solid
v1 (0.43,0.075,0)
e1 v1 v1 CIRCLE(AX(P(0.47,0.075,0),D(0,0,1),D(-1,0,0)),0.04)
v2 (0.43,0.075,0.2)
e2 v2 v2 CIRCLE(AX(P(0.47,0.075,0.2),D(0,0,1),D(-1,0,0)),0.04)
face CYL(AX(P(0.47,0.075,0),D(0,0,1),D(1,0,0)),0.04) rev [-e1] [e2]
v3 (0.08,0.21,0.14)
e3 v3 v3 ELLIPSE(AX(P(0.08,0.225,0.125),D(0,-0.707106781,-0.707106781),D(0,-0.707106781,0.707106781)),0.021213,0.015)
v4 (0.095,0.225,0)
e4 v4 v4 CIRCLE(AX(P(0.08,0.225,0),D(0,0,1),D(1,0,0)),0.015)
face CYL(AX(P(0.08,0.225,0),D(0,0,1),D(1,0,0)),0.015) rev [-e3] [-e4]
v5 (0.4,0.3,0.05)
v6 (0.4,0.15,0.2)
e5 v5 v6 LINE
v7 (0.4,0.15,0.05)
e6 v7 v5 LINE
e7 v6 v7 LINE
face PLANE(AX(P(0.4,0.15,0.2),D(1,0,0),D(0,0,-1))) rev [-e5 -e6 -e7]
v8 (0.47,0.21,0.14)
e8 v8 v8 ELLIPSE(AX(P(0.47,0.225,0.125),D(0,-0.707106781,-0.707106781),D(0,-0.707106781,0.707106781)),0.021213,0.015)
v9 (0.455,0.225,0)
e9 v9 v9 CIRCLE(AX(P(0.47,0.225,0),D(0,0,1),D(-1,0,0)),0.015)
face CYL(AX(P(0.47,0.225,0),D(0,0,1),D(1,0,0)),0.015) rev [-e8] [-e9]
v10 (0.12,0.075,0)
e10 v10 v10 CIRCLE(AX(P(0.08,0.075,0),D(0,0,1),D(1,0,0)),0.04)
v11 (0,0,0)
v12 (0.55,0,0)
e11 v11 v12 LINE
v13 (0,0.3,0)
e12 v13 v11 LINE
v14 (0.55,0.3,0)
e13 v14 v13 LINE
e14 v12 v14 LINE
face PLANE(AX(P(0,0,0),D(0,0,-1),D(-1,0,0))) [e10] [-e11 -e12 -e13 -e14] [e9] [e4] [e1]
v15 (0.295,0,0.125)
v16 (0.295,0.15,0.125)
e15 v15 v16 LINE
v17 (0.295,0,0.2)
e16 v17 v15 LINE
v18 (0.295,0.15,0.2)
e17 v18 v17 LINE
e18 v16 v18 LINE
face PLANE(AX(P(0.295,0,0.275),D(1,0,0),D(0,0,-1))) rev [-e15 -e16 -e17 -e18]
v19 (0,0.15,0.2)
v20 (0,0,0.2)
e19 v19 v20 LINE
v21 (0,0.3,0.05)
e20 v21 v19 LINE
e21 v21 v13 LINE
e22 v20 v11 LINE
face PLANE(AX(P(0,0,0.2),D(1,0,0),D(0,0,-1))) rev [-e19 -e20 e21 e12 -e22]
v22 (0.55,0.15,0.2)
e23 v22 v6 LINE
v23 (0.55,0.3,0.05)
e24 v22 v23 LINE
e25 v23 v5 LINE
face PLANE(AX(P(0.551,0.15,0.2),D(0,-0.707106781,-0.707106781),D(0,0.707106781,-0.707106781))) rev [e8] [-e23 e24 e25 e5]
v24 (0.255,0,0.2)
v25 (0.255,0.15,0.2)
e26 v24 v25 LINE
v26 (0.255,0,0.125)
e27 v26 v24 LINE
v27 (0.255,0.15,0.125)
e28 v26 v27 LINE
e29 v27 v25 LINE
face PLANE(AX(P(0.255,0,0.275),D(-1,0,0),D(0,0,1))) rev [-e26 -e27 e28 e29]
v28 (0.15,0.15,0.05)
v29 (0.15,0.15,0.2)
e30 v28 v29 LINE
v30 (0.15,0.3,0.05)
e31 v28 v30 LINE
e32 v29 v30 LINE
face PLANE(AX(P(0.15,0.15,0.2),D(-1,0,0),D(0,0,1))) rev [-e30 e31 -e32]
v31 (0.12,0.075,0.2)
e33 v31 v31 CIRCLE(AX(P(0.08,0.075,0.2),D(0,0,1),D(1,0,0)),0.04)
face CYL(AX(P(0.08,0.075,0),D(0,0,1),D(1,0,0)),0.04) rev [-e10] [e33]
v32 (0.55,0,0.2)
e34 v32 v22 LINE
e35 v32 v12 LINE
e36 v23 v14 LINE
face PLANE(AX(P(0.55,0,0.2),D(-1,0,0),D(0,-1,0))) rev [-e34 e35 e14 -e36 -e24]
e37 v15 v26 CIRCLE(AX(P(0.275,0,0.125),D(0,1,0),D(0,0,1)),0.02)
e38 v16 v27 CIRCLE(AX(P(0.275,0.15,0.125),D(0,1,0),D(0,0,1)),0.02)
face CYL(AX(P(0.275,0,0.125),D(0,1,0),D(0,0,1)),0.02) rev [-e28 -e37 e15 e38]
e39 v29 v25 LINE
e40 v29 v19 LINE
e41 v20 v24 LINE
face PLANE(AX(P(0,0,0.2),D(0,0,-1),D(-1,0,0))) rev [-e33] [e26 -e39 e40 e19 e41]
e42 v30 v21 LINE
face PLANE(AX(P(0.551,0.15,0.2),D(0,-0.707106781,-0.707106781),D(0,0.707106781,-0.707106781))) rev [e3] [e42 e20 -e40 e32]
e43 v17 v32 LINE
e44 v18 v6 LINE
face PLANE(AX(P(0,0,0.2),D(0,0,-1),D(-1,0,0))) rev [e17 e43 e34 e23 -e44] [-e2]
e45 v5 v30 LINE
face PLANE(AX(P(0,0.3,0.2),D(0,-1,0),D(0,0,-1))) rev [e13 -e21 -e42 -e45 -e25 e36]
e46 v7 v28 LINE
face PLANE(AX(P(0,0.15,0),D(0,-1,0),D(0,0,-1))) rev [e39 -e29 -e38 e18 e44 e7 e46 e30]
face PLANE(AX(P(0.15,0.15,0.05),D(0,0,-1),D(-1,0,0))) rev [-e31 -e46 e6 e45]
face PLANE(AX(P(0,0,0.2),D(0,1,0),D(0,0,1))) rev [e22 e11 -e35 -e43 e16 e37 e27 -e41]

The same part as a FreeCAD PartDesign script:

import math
import FreeCAD as App
import Part
import Sketcher

V = App.Vector


def add_polygon(sketch, points):
    """Adds a closed chain of lines whose ends are joined by coincident constraints."""
    first, n = sketch.GeometryCount, len(points)
    for a, b in zip(points, points[1:] + points[:1]):
        sketch.addGeometry(Part.LineSegment(App.Vector(*a, 0), App.Vector(*b, 0)), False)
    for i in range(n):
        sketch.addConstraint(Sketcher.Constraint("Coincident", first + i, 2, first + (i + 1) % n, 1))

doc = App.newDocument("Part")
body = doc.addObject("PartDesign::Body", "Body")

# Sketch on XY plane
sketch1 = body.newObject("Sketcher::SketchObject", "Sketch")
sketch1.AttachmentSupport = (doc.getObject("XY_Plane"), [""])
sketch1.MapMode = "FlatFace"
add_polygon(sketch1, [(0, 0.3), (0, 0), (0.55, 0), (0.55, 0.3)])  # lines 0-3
sketch1.addConstraint([
    Sketcher.Constraint("Vertical", 0),
    Sketcher.Constraint("Horizontal", 1),
    Sketcher.Constraint("Vertical", 2),
    Sketcher.Constraint("Horizontal", 3),
    Sketcher.Constraint("Coincident", 0, 2, -1, 1),
    Sketcher.Constraint("DistanceY", 0, 2, 0, 1, 0.3),
    Sketcher.Constraint("DistanceX", 1, 1, 1, 2, 0.55),
])
pad1 = body.newObject("PartDesign::Pad", "Pad")
pad1.Profile = sketch1
pad1.Length = 0.2

# Sketch on YZ plane
sketch2 = body.newObject("Sketcher::SketchObject", "Sketch001")
sketch2.AttachmentSupport = (doc.getObject("YZ_Plane"), [""])
sketch2.MapMode = "FlatFace"
add_polygon(sketch2, [(0.15, 0.2), (0.3, 0.2), (0.3, 0.05)])  # lines 0-2
sketch2.addConstraint([
    Sketcher.Constraint("Horizontal", 0),
    Sketcher.Constraint("Vertical", 1),
    Sketcher.Constraint("Equal", 0, 1),
    Sketcher.Constraint("DistanceX", 0, 1, 0, 2, 0.15),
    Sketcher.Constraint("DistanceX", -1, 1, 0, 2, 0.3),
    Sketcher.Constraint("DistanceY", -1, 1, 0, 2, 0.2),
])
pocket1 = body.newObject("PartDesign::Pocket", "Pocket")
pocket1.Profile = sketch2
pocket1.Type = "UpToFirst"
pocket1.Reversed = True

# Sketch on XZ plane
sketch3 = body.newObject("Sketcher::SketchObject", "Sketch002")
sketch3.AttachmentSupport = (doc.getObject("XZ_Plane"), [""])
sketch3.MapMode = "FlatFace"
sketch3.AttachmentOffset = App.Placement(V(0, 0, -0.3), App.Rotation())
add_polygon(sketch3, [(0.15, 0.05), (0.15, 0.2), (0.4, 0.2), (0.4, 0.05)])  # lines 0-3
sketch3.addConstraint([
    Sketcher.Constraint("Vertical", 0),
    Sketcher.Constraint("Horizontal", 1),
    Sketcher.Constraint("Vertical", 2),
    Sketcher.Constraint("Horizontal", 3),
    Sketcher.Constraint("DistanceX", 1, 1, 1, 2, 0.25),
    Sketcher.Constraint("DistanceY", 0, 1, 0, 2, 0.15),
    Sketcher.Constraint("DistanceY", -1, 1, 0, 2, 0.2),
    Sketcher.Constraint("DistanceX", -1, 1, 1, 2, 0.4),
])
pocket2 = body.newObject("PartDesign::Pocket", "Pocket001")
pocket2.Profile = sketch3
pocket2.Length = 0.15
pocket2.Reversed = True

# Sketch on XZ plane
sketch4 = body.newObject("Sketcher::SketchObject", "Sketch003")
sketch4.AttachmentSupport = (doc.getObject("XZ_Plane"), [""])
sketch4.MapMode = "FlatFace"
sketch4.AttachmentOffset = App.Placement(V(0, 0, -0.15), App.Rotation())
sketch4.addGeometry([
    Part.LineSegment(V(0.255, 0.125, 0), V(0.255, 0.275, 0)),
    Part.ArcOfCircle(Part.Circle(V(0.275, 0.275, 0), V(0, 0, 1), 0.02), math.radians(0), math.radians(180)),
    Part.LineSegment(V(0.295, 0.275, 0), V(0.295, 0.125, 0)),
    Part.ArcOfCircle(Part.Circle(V(0.275, 0.125, 0), V(0, 0, 1), 0.02), math.radians(180), math.radians(360)),
], False)
sketch4.addConstraint([
    Sketcher.Constraint("Tangent", 0, 2, 1, 2),
    Sketcher.Constraint("Tangent", 1, 1, 2, 1),
    Sketcher.Constraint("Tangent", 2, 2, 3, 2),
    Sketcher.Constraint("Tangent", 3, 1, 0, 1),
    Sketcher.Constraint("Vertical", 0),
    Sketcher.Constraint("Vertical", 2),
    Sketcher.Constraint("Radius", 1, 0.02),
    Sketcher.Constraint("DistanceY", 0, 1, 0, 2, 0.15),
    Sketcher.Constraint("DistanceX", -1, 1, 1, 3, 0.275),
    Sketcher.Constraint("DistanceY", -1, 1, 1, 3, 0.275),
])
pocket3 = body.newObject("PartDesign::Pocket", "Pocket002")
pocket3.Profile = sketch4
pocket3.Type = "ThroughAll"
pocket3.Reversed = True

# Sketch on XY plane
sketch5 = body.newObject("Sketcher::SketchObject", "Sketch004")
sketch5.AttachmentSupport = (doc.getObject("XY_Plane"), [""])
sketch5.MapMode = "FlatFace"
sketch5.AttachmentOffset = App.Placement(V(0, 0, 0.2), App.Rotation())
sketch5.addGeometry([
    Part.Circle(V(0.08, 0.075, 0), V(0, 0, 1), 0.04),
    Part.Circle(V(0.08, 0.225, 0), V(0, 0, 1), 0.015),
    Part.Circle(V(0.47, 0.075, 0), V(0, 0, 1), 0.04),
    Part.Circle(V(0.47, 0.225, 0), V(0, 0, 1), 0.015),
], False)
sketch5.addConstraint([
    Sketcher.Constraint("Equal", 0, 2),
    Sketcher.Constraint("Equal", 1, 3),
    Sketcher.Constraint("Horizontal", 0, 3, 2, 3),
    Sketcher.Constraint("Horizontal", 1, 3, 3, 3),
    Sketcher.Constraint("Vertical", 0, 3, 1, 3),
    Sketcher.Constraint("Vertical", 2, 3, 3, 3),
    Sketcher.Constraint("Diameter", 0, 0.08),
    Sketcher.Constraint("Diameter", 1, 0.03),
    Sketcher.Constraint("DistanceX", -1, 1, 0, 3, 0.08),
    Sketcher.Constraint("DistanceX", -1, 1, 2, 3, 0.47),
    Sketcher.Constraint("DistanceY", 0, 3, 1, 3, 0.15),
    Sketcher.Constraint("DistanceY", -1, 1, 0, 3, 0.075),
])
pocket4 = body.newObject("PartDesign::Pocket", "Pocket003")
pocket4.Profile = sketch5
pocket4.Type = "ThroughAll"

doc.recompute()
